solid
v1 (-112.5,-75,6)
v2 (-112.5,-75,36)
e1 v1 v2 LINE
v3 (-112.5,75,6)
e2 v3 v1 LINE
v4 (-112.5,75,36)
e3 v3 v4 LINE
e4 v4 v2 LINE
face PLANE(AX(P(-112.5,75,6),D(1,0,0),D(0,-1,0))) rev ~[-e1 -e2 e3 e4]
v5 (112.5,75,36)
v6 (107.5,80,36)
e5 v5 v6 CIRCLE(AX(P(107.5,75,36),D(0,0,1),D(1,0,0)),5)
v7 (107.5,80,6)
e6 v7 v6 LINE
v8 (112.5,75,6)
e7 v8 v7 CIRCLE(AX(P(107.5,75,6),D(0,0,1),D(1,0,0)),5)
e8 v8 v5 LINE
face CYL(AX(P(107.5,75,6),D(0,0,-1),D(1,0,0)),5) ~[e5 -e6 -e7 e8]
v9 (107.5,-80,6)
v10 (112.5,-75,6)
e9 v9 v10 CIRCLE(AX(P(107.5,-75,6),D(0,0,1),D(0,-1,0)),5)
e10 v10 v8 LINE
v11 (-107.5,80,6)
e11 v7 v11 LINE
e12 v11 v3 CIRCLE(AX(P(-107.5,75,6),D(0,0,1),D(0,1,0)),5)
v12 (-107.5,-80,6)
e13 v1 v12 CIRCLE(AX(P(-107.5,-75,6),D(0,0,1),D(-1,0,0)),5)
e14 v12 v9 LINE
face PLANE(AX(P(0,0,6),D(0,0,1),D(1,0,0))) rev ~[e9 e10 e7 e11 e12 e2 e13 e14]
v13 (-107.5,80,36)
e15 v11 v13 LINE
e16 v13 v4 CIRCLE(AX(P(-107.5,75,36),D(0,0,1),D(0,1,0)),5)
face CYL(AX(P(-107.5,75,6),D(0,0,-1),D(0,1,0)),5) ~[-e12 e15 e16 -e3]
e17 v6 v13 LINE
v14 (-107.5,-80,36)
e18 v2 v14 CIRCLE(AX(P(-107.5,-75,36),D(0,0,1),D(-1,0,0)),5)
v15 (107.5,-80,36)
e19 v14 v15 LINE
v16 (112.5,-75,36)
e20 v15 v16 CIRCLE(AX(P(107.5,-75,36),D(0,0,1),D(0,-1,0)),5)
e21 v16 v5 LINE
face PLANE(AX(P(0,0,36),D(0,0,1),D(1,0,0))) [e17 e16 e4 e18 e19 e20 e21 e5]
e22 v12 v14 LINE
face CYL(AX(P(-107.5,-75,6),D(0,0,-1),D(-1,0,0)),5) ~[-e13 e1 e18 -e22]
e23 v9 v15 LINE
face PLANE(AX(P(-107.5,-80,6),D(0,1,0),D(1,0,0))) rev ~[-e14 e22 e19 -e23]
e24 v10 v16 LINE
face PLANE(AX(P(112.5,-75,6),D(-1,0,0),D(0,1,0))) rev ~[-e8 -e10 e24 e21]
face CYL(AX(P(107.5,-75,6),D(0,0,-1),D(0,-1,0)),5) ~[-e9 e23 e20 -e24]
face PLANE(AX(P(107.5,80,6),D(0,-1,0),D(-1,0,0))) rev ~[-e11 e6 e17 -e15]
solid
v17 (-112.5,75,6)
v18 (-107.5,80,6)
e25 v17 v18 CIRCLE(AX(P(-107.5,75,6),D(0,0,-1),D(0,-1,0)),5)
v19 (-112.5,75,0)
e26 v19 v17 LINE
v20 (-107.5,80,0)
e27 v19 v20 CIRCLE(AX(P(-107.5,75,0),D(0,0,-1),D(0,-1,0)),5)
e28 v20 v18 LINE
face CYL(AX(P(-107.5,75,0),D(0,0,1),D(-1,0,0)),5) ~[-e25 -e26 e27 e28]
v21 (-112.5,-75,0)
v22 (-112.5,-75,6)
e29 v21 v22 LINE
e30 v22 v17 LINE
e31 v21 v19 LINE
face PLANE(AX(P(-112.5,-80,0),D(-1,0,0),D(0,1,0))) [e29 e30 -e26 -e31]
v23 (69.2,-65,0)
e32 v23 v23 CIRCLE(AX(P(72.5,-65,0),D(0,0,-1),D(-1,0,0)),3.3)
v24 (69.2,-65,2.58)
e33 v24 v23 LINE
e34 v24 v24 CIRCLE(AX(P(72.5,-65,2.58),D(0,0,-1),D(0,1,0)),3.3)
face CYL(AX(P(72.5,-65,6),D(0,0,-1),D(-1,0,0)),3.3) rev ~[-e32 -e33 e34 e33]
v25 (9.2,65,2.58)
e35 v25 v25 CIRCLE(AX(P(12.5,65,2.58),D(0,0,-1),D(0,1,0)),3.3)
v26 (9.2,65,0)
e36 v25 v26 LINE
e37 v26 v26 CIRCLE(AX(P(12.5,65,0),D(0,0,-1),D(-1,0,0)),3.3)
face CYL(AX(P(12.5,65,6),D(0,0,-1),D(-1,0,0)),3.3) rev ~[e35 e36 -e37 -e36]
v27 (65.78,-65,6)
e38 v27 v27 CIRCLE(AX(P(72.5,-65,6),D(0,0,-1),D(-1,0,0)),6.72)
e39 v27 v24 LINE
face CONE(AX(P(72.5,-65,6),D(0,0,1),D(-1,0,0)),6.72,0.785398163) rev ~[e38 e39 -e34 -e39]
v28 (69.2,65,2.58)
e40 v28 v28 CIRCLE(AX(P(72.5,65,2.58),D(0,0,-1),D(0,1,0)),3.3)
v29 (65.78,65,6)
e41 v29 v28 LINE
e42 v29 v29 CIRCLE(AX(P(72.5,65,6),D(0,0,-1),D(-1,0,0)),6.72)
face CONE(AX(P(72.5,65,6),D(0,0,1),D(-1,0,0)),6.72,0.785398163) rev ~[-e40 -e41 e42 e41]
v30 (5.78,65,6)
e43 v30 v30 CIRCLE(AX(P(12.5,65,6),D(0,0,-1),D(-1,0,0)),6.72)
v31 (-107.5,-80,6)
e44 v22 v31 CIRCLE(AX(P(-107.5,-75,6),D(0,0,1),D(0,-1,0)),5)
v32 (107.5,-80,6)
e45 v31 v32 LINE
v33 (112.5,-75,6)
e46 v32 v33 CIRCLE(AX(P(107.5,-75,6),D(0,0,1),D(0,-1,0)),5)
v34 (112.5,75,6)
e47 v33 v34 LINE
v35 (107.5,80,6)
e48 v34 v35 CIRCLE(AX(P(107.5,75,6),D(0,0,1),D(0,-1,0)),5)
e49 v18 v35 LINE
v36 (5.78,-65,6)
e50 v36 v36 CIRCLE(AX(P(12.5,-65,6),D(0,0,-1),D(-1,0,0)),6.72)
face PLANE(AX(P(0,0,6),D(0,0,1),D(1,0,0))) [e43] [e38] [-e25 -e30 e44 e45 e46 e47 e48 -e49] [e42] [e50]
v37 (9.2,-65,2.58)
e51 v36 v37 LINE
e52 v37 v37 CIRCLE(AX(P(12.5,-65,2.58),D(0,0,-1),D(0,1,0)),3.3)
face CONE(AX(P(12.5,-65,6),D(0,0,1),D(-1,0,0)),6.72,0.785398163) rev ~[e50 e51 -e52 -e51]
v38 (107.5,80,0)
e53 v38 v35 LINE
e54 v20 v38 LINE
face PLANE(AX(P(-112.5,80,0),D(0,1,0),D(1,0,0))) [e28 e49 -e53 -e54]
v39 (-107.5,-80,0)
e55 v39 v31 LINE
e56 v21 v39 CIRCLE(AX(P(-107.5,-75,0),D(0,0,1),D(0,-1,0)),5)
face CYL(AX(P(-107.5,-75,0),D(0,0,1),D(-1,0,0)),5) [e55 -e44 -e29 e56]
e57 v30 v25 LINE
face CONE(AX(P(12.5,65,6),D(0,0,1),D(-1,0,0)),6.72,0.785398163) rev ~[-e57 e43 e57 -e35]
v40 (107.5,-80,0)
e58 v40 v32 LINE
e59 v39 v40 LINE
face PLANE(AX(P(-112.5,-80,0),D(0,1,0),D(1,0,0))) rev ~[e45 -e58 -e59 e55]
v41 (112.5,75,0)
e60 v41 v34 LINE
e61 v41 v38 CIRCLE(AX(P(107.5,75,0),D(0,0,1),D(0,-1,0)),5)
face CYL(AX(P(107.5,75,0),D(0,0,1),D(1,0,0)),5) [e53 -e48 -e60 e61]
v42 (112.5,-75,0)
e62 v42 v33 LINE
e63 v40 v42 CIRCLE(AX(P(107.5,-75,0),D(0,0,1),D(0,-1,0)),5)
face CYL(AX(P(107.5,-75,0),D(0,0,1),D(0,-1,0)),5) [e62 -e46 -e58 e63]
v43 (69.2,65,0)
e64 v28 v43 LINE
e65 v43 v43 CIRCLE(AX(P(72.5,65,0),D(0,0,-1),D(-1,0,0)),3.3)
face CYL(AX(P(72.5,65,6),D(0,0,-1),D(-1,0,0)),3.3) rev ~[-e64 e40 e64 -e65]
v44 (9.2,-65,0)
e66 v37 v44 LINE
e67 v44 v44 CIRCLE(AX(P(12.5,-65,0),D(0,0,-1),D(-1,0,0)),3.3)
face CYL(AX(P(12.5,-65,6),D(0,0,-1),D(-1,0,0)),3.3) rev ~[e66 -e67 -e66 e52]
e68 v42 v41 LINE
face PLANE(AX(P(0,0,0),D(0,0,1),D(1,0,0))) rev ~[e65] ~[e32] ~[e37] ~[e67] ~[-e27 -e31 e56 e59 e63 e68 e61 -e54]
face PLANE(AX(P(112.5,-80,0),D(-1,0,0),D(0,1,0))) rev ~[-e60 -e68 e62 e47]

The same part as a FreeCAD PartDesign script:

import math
import FreeCAD as App
import Part
import Sketcher
from FreeCAD import Vector


def edges_at(feature, points):
    """Names of the edges that pass closest to the given points."""
    edges = feature.Shape.Edges
    near = lambda p: min(range(len(edges)), key=lambda i: edges[i].distToShape(Part.Vertex(*p))[0])
    return sorted({f"Edge{near(p) + 1}" for p in points})

doc = App.newDocument("Part")
body = doc.addObject("PartDesign::Body", "Body")

# Sketch on XY plane
sketch1 = body.newObject("Sketcher::SketchObject", "Sketch")
sketch1.AttachmentSupport = (doc.getObject("XY_Plane"), [""])
sketch1.MapMode = "FlatFace"
sketch1.addGeometry(Part.LineSegment(Vector(-112, 80, 0), Vector(-112, -80, 0)), False)
sketch1.addGeometry(Part.LineSegment(Vector(-112, -80, 0), Vector(112, -80, 0)), False)
sketch1.addGeometry(Part.LineSegment(Vector(112, -80, 0), Vector(112, 80, 0)), False)
sketch1.addGeometry(Part.LineSegment(Vector(112, 80, 0), Vector(-112, 80, 0)), False)
sketch1.addConstraint(Sketcher.Constraint("Coincident", 0, 2, 1, 1))
sketch1.addConstraint(Sketcher.Constraint("Coincident", 1, 2, 2, 1))
sketch1.addConstraint(Sketcher.Constraint("Coincident", 2, 2, 3, 1))
sketch1.addConstraint(Sketcher.Constraint("Coincident", 3, 2, 0, 1))
sketch1.addConstraint(Sketcher.Constraint("Vertical", 0))
sketch1.addConstraint(Sketcher.Constraint("Horizontal", 1))
sketch1.addConstraint(Sketcher.Constraint("Vertical", 2))
sketch1.addConstraint(Sketcher.Constraint("Horizontal", 3))
sketch1.addConstraint(Sketcher.Constraint("Symmetric", 0, 2, 2, 2, -1, 1))
sketch1.addConstraint(Sketcher.Constraint("DistanceX", 1, 1, 1, 2, 225.0))
sketch1.addConstraint(Sketcher.Constraint("DistanceY", 0, 2, 0, 1, 160.0))
pad1 = body.newObject("PartDesign::Pad", "Pad")
pad1.Profile = sketch1
pad1.Length = 6
doc.recompute()

fillet = body.newObject("PartDesign::Fillet", "Fillet")
fillet.Base = (pad1, edges_at(pad1, [
    (112.5, -80, 3),
    (112.5, 80, 3),
    (-112.5, -80, 3),
    (-112.5, 80, 3),
]))
fillet.Radius = 5

# Sketch on XY plane
sketch2 = body.newObject("Sketcher::SketchObject", "Sketch001")
sketch2.AttachmentSupport = (doc.getObject("XY_Plane"), [""])
sketch2.MapMode = "FlatFace"
sketch2.AttachmentOffset = App.Placement(Vector(0, 0, 6), App.Rotation())
sketch2.addGeometry(Part.Circle(Vector(12.5, -65, 0), Vector(0, 0, 1), 3.3), False)
sketch2.addGeometry(Part.Circle(Vector(72.5, -65, 0), Vector(0, 0, 1), 3.3), False)
sketch2.addGeometry(Part.Circle(Vector(72.5, 65, 0), Vector(0, 0, 1), 3.3), False)
sketch2.addGeometry(Part.Circle(Vector(12.5, 65, 0), Vector(0, 0, 1), 3.3), False)
sketch2.addConstraint(Sketcher.Constraint("Equal", 0, 1))
sketch2.addConstraint(Sketcher.Constraint("Equal", 1, 2))
sketch2.addConstraint(Sketcher.Constraint("Equal", 2, 3))
sketch2.addConstraint(Sketcher.Constraint("Symmetric", 1, 3, 2, 3, -1))
sketch2.addConstraint(Sketcher.Constraint("Symmetric", 0, 3, 3, 3, -1))
sketch2.addConstraint(Sketcher.Constraint("Horizontal", 0, 3, 1, 3))
sketch2.addConstraint(Sketcher.Constraint("Diameter", 0, 6.6))
sketch2.addConstraint(Sketcher.Constraint("DistanceY", 0, 3, -1, 1, 65.0))
sketch2.addConstraint(Sketcher.Constraint("DistanceX", 0, 3, 1, 3, 60.0))
sketch2.addConstraint(Sketcher.Constraint("DistanceX", -1, 1, 0, 3, 12.5))
doc.recompute()
hole = body.newObject("PartDesign::Hole", "Hole")
hole.Profile = sketch2
hole.ThreadType = "None"
hole.Diameter = 6.6
hole.DepthType = "Dimension"
hole.Depth = 7
hole.DrillPoint = "Angled"
hole.DrillPointAngle = 118
hole.HoleCutType = "Countersink"
hole.HoleCutDiameter = 13.44
hole.HoleCutCountersinkAngle = 90
body2 = doc.addObject("PartDesign::Body", "Body001")

# Sketch on XY plane
sketch3 = body2.newObject("Sketcher::SketchObject", "Sketch002")
sketch3.AttachmentSupport = (doc.getObject("XY_Plane001"), [""])
sketch3.MapMode = "FlatFace"
sketch3.AttachmentOffset = App.Placement(Vector(0, 0, 6), App.Rotation())
sketch3.addGeometry(Part.ArcOfCircle(Part.Circle(Vector(108, -75, 0), Vector(0, 0, 1), 5), math.radians(-90), math.radians(0)), False)
sketch3.addGeometry(Part.LineSegment(Vector(112, -75, 0), Vector(112, 75, 0)), False)
sketch3.addGeometry(Part.ArcOfCircle(Part.Circle(Vector(108, 75, 0), Vector(0, 0, 1), 5), math.radians(0), math.radians(90)), False)
sketch3.addGeometry(Part.LineSegment(Vector(108, 80, 0), Vector(-108, 80, 0)), False)
sketch3.addGeometry(Part.ArcOfCircle(Part.Circle(Vector(-108, 75, 0), Vector(0, 0, 1), 5), math.radians(90), math.radians(180)), False)
sketch3.addGeometry(Part.LineSegment(Vector(-112, 75, 0), Vector(-112, -75, 0)), False)
sketch3.addGeometry(Part.ArcOfCircle(Part.Circle(Vector(-108, -75, 0), Vector(0, 0, 1), 5), math.radians(180), math.radians(270)), False)
sketch3.addGeometry(Part.LineSegment(Vector(-108, -80, 0), Vector(108, -80, 0)), False)
sketch3.addConstraint(Sketcher.Constraint("Tangent", 0, 2, 1, 1))
sketch3.addConstraint(Sketcher.Constraint("Tangent", 1, 2, 2, 1))
sketch3.addConstraint(Sketcher.Constraint("Tangent", 2, 2, 3, 1))
sketch3.addConstraint(Sketcher.Constraint("Tangent", 3, 2, 4, 1))
sketch3.addConstraint(Sketcher.Constraint("Tangent", 4, 2, 5, 1))
sketch3.addConstraint(Sketcher.Constraint("Tangent", 5, 2, 6, 1))
sketch3.addConstraint(Sketcher.Constraint("Tangent", 6, 2, 7, 1))
sketch3.addConstraint(Sketcher.Constraint("Tangent", 7, 2, 0, 1))
sketch3.addConstraint(Sketcher.Constraint("Vertical", 1))
sketch3.addConstraint(Sketcher.Constraint("Horizontal", 3))
sketch3.addConstraint(Sketcher.Constraint("Vertical", 5))
sketch3.addConstraint(Sketcher.Constraint("Horizontal", 7))
sketch3.addConstraint(Sketcher.Constraint("Equal", 0, 2))
sketch3.addConstraint(Sketcher.Constraint("Equal", 2, 4))
sketch3.addConstraint(Sketcher.Constraint("Equal", 4, 6))
sketch3.addConstraint(Sketcher.Constraint("Symmetric", 0, 3, 4, 3, -1, 1))
sketch3.addConstraint(Sketcher.Constraint("Radius", 0, 5.0))
sketch3.addConstraint(Sketcher.Constraint("DistanceX", 3, 2, 3, 1, 215.0))
sketch3.addConstraint(Sketcher.Constraint("DistanceY", 1, 1, 1, 2, 150.0))
pad2 = body2.newObject("PartDesign::Pad", "Pad001")
pad2.Profile = sketch3
pad2.Length = 30

doc.recompute()
